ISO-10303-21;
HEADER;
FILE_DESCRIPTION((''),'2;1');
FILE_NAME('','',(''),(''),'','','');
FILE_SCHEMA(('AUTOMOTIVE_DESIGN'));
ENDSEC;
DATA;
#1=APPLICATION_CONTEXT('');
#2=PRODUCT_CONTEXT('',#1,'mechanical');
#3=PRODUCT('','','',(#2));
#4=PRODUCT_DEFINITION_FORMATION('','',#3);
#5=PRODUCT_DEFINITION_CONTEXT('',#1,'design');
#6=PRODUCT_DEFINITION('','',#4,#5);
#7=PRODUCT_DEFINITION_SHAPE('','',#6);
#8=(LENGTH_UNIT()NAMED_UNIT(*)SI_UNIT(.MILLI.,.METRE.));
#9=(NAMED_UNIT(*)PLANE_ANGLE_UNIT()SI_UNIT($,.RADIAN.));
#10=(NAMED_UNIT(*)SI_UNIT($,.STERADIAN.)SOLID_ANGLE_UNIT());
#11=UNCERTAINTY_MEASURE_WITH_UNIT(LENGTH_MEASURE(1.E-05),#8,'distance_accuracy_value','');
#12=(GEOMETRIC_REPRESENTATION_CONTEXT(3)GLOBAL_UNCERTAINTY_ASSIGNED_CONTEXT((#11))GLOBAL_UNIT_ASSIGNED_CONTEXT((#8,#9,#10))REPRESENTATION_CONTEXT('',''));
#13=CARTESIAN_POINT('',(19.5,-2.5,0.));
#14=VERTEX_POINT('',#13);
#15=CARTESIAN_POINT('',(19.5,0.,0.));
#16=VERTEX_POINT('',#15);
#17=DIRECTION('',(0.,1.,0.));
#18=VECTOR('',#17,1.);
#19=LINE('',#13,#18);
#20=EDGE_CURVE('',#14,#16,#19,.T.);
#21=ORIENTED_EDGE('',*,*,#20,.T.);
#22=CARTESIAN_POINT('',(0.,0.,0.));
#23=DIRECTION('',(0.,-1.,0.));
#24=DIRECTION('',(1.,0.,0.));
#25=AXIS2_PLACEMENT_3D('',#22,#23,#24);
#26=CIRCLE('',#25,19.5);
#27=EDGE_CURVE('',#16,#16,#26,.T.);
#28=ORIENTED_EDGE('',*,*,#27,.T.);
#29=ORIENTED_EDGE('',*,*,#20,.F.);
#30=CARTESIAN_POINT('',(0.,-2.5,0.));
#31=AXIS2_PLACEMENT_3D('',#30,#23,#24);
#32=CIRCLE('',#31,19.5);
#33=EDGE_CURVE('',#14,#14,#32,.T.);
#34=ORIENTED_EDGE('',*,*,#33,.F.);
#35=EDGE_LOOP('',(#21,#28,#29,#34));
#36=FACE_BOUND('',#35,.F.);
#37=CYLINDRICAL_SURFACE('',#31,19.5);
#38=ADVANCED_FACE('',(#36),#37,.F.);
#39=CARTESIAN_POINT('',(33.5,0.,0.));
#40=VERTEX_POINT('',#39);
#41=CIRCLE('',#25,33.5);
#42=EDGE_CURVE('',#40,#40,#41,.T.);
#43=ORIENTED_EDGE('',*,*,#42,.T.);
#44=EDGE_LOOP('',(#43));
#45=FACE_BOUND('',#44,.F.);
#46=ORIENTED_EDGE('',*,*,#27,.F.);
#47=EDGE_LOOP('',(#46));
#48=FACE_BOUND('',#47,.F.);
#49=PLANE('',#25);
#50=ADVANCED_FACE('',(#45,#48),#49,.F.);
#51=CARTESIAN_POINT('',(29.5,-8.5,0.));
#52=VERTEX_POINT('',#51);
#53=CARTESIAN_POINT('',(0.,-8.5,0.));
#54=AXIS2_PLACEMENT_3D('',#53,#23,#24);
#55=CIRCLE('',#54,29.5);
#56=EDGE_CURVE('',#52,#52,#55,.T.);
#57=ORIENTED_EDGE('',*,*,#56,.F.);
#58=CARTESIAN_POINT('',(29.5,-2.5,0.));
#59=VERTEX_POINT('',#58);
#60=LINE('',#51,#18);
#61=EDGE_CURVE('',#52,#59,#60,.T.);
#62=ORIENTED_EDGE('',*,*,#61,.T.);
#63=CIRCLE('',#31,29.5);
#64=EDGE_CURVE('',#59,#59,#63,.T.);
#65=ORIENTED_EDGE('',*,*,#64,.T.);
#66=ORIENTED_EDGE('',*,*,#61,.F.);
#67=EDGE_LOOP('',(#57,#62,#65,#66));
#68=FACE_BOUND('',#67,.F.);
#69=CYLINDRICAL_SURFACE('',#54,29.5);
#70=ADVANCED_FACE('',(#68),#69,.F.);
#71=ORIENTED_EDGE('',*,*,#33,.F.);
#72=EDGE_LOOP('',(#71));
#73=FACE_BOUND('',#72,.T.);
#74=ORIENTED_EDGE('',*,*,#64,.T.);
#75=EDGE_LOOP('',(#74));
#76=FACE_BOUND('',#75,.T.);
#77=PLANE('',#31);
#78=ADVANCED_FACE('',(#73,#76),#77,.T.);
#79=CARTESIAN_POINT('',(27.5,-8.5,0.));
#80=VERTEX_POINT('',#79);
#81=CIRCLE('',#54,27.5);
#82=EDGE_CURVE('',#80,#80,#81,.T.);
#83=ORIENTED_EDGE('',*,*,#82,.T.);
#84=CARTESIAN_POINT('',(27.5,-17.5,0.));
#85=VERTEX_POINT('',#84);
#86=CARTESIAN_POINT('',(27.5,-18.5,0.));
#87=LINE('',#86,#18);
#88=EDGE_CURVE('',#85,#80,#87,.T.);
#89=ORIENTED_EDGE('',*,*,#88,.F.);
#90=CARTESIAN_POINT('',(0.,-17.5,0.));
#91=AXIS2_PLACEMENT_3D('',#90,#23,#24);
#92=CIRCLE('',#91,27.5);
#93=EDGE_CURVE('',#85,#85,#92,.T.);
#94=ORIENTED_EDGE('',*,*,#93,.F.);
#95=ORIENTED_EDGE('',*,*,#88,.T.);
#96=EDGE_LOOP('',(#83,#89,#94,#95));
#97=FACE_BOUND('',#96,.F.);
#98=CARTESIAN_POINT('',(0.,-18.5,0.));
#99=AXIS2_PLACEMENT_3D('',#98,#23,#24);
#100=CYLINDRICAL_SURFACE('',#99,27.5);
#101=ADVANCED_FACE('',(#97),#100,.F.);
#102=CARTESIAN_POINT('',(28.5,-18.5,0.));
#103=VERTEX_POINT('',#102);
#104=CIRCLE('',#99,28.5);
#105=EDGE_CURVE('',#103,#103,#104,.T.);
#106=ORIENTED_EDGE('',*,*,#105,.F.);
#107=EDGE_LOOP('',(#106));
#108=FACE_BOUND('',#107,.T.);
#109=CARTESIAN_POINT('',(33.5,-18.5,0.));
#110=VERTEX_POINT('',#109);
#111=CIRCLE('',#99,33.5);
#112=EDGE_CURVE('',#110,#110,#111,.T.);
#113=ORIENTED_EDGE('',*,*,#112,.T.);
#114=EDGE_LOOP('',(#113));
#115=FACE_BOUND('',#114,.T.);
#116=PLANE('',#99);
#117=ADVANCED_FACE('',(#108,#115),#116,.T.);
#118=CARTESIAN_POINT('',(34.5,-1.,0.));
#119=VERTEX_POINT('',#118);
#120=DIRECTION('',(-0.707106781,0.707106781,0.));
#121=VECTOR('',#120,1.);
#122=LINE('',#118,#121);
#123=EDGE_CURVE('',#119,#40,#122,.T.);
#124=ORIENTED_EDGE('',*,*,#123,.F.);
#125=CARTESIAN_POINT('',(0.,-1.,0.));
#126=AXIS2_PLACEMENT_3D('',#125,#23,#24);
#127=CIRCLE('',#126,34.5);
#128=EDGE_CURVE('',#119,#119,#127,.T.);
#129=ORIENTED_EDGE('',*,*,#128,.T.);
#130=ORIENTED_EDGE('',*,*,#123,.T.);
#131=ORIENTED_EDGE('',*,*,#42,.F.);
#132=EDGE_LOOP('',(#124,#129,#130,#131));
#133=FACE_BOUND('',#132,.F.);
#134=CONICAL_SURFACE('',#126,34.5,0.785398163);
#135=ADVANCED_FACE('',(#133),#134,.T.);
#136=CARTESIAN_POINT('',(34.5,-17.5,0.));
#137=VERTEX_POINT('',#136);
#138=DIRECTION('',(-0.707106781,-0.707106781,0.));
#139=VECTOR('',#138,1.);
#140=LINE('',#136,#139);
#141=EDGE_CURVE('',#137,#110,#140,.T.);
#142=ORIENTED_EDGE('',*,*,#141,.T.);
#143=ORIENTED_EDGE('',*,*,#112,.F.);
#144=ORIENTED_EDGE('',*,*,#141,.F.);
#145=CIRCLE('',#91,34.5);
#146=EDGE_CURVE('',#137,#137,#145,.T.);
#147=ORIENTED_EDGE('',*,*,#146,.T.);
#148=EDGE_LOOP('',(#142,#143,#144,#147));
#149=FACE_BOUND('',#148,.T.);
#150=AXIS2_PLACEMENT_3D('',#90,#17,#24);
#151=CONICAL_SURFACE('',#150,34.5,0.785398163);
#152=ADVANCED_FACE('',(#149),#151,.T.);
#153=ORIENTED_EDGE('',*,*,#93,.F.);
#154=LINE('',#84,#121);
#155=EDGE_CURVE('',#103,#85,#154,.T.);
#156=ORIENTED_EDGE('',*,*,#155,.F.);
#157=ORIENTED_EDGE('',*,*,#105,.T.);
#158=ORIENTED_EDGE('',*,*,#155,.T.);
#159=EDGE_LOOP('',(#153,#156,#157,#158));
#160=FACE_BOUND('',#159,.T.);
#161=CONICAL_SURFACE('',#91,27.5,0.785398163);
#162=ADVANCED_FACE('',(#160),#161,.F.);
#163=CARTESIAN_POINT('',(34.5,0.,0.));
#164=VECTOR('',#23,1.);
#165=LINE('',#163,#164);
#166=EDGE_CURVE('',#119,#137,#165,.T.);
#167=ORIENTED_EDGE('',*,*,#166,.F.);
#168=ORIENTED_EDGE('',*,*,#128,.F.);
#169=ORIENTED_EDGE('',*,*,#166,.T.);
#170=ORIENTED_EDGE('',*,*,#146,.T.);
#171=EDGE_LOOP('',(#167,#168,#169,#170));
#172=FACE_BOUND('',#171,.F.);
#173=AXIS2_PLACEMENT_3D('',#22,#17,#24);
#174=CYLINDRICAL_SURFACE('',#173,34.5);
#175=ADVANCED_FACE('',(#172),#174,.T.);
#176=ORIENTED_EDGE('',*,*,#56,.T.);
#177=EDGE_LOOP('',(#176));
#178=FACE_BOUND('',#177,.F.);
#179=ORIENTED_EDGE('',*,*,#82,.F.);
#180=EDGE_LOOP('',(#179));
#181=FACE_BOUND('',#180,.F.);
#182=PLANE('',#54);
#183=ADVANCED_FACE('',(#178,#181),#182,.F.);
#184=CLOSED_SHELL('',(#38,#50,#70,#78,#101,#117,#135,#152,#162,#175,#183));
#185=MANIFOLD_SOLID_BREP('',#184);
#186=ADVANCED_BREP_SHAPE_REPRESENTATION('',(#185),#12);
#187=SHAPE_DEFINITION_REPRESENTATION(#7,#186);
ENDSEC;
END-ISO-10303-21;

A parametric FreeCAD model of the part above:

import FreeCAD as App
import Part
import Sketcher


def edges_at(feature, points):
    """Names of the edges that pass closest to the given points."""
    edges = feature.Shape.Edges
    near = lambda p: min(range(len(edges)), key=lambda i: edges[i].distToShape(Part.Vertex(*p))[0])
    return sorted({f"Edge{near(p) + 1}" for p in points})

doc = App.newDocument("Part")
body = doc.addObject("PartDesign::Body", "Body")

sketch1 = doc.addObject("Sketcher::SketchObject", "Sketch")
body.addObject(sketch1)
sketch1.AttachmentSupport = (doc.XZ_Plane, [""])
sketch1.MapMode = "FlatFace"
sketch1.addGeometry(Part.Circle(App.Vector(0, 0, 0), App.Vector(0, 0, 1), 34), False)
sketch1.addConstraint(Sketcher.Constraint("Coincident", 0, 3, -1, 1))
sketch1.addConstraint(Sketcher.Constraint("Diameter", 0, 69.0))
pad1 = doc.addObject("PartDesign::Pad", "Pad")
body.addObject(pad1)
pad1.Profile = sketch1
pad1.Length = 18.5

sketch2 = doc.addObject("Sketcher::SketchObject", "Sketch001")
body.addObject(sketch2)
sketch2.AttachmentSupport = (doc.XZ_Plane, [""])
sketch2.MapMode = "FlatFace"
sketch2.AttachmentOffset = App.Placement(App.Vector(0, 0, 18.5), App.Rotation())
sketch2.addGeometry(Part.Circle(App.Vector(0, 0, 0), App.Vector(0, 0, 1), 28), False)
sketch2.addConstraint(Sketcher.Constraint("Coincident", 0, 3, -1, 1))
sketch2.addConstraint(Sketcher.Constraint("Diameter", 0, 55.0))
pocket1 = doc.addObject("PartDesign::Pocket", "Pocket")
body.addObject(pocket1)
pocket1.Profile = sketch2
pocket1.Length = 10

sketch3 = doc.addObject("Sketcher::SketchObject", "Sketch002")
body.addObject(sketch3)
sketch3.AttachmentSupport = (doc.XZ_Plane, [""])
sketch3.MapMode = "FlatFace"
sketch3.AttachmentOffset = App.Placement(App.Vector(0, 0, 8.5), App.Rotation())
sketch3.addGeometry(Part.Circle(App.Vector(0, 0, 0), App.Vector(0, 0, 1), 30), False)
sketch3.addConstraint(Sketcher.Constraint("Coincident", 0, 3, -1, 1))
sketch3.addConstraint(Sketcher.Constraint("Diameter", 0, 59.0))
pocket2 = doc.addObject("PartDesign::Pocket", "Pocket001")
body.addObject(pocket2)
pocket2.Profile = sketch3
pocket2.Length = 6

sketch4 = doc.addObject("Sketcher::SketchObject", "Sketch003")
body.addObject(sketch4)
sketch4.AttachmentSupport = (doc.XZ_Plane, [""])
sketch4.MapMode = "FlatFace"
sketch4.AttachmentOffset = App.Placement(App.Vector(0, 0, 2.5), App.Rotation())
sketch4.addGeometry(Part.Circle(App.Vector(0, 0, 0), App.Vector(0, 0, 1), 20), False)
sketch4.addConstraint(Sketcher.Constraint("Coincident", 0, 3, -1, 1))
sketch4.addConstraint(Sketcher.Constraint("Diameter", 0, 39.0))
pocket3 = doc.addObject("PartDesign::Pocket", "Pocket002")
body.addObject(pocket3)
pocket3.Profile = sketch4
pocket3.Type = "ThroughAll"
doc.recompute()

chamfer = doc.addObject("PartDesign::Chamfer", "Chamfer")
body.addObject(chamfer)
chamfer.Base = (pocket3, edges_at(pocket3, [(-34.5, -18.5, 0), (-27.5, -18.5, 0), (-34.5, 0, 0)]))
chamfer.Size = 1

doc.recompute()
